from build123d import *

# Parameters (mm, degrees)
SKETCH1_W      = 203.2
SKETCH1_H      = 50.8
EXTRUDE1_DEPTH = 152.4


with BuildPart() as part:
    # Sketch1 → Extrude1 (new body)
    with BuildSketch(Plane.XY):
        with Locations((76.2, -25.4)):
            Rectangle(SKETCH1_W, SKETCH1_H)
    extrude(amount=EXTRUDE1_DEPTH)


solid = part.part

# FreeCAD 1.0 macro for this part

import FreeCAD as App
import Part
import Sketcher

V = App.Vector
Q = App.Units.Quantity

doc = App.newDocument("Part")
params = doc.addObject("Spreadsheet::Sheet", "Params")
for row, (alias, value) in enumerate([
    ("sketch1_width", "8 in"),
    ("sketch1_height", "2 in"),
    ("pad1_length", "6 in"),
], start=1):
    params.set(f"A{row}", alias)
    params.set(f"B{row}", "=" + value)
    params.setAlias(f"B{row}", alias)

body = doc.addObject("PartDesign::Body", "Body")

# Sketch on XY plane
sketch1 = doc.addObject("Sketcher::SketchObject", "Sketch")
body.addObject(sketch1)
sketch1.AttachmentSupport = (doc.XY_Plane, [""])
sketch1.MapMode = "FlatFace"
sketch1.addGeometry(Part.LineSegment(V(-25, 0, 0), V(-25, -51, 0)), False)
sketch1.addGeometry(Part.LineSegment(V(-25, -51, 0), V(178, -51, 0)), False)
sketch1.addGeometry(Part.LineSegment(V(178, -51, 0), V(178, 0, 0)), False)
sketch1.addGeometry(Part.LineSegment(V(178, 0, 0), V(-25, 0, 0)), False)
sketch1.addConstraint(Sketcher.Constraint("Coincident", 0, 2, 1, 1))
sketch1.addConstraint(Sketcher.Constraint("Coincident", 1, 2, 2, 1))
sketch1.addConstraint(Sketcher.Constraint("Coincident", 2, 2, 3, 1))
sketch1.addConstraint(Sketcher.Constraint("Coincident", 3, 2, 0, 1))
sketch1.addConstraint(Sketcher.Constraint("Vertical", 0))
sketch1.addConstraint(Sketcher.Constraint("Horizontal", 1))
sketch1.addConstraint(Sketcher.Constraint("Vertical", 2))
sketch1.addConstraint(Sketcher.Constraint("Horizontal", 3))
sketch1.addConstraint(Sketcher.Constraint("PointOnObject", 2, 2, -1))
sketch1.addConstraint(Sketcher.Constraint("DistanceX", 1, 1, 1, 2, Q("8 in")))
sketch1.addConstraint(Sketcher.Constraint("DistanceY", 0, 2, 0, 1, Q("2 in")))
sketch1.addConstraint(Sketcher.Constraint("DistanceX", 0, 2, -1, 1, Q("1 in")))
sketch1.setExpression("Constraints[9]", "Params.sketch1_width")
sketch1.setExpression("Constraints[10]", "Params.sketch1_height")
pad1 = doc.addObject("PartDesign::Pad", "Pad")
body.addObject(pad1)
pad1.Profile = sketch1
pad1.setExpression("Length", "Params.pad1_length")

doc.recompute()
